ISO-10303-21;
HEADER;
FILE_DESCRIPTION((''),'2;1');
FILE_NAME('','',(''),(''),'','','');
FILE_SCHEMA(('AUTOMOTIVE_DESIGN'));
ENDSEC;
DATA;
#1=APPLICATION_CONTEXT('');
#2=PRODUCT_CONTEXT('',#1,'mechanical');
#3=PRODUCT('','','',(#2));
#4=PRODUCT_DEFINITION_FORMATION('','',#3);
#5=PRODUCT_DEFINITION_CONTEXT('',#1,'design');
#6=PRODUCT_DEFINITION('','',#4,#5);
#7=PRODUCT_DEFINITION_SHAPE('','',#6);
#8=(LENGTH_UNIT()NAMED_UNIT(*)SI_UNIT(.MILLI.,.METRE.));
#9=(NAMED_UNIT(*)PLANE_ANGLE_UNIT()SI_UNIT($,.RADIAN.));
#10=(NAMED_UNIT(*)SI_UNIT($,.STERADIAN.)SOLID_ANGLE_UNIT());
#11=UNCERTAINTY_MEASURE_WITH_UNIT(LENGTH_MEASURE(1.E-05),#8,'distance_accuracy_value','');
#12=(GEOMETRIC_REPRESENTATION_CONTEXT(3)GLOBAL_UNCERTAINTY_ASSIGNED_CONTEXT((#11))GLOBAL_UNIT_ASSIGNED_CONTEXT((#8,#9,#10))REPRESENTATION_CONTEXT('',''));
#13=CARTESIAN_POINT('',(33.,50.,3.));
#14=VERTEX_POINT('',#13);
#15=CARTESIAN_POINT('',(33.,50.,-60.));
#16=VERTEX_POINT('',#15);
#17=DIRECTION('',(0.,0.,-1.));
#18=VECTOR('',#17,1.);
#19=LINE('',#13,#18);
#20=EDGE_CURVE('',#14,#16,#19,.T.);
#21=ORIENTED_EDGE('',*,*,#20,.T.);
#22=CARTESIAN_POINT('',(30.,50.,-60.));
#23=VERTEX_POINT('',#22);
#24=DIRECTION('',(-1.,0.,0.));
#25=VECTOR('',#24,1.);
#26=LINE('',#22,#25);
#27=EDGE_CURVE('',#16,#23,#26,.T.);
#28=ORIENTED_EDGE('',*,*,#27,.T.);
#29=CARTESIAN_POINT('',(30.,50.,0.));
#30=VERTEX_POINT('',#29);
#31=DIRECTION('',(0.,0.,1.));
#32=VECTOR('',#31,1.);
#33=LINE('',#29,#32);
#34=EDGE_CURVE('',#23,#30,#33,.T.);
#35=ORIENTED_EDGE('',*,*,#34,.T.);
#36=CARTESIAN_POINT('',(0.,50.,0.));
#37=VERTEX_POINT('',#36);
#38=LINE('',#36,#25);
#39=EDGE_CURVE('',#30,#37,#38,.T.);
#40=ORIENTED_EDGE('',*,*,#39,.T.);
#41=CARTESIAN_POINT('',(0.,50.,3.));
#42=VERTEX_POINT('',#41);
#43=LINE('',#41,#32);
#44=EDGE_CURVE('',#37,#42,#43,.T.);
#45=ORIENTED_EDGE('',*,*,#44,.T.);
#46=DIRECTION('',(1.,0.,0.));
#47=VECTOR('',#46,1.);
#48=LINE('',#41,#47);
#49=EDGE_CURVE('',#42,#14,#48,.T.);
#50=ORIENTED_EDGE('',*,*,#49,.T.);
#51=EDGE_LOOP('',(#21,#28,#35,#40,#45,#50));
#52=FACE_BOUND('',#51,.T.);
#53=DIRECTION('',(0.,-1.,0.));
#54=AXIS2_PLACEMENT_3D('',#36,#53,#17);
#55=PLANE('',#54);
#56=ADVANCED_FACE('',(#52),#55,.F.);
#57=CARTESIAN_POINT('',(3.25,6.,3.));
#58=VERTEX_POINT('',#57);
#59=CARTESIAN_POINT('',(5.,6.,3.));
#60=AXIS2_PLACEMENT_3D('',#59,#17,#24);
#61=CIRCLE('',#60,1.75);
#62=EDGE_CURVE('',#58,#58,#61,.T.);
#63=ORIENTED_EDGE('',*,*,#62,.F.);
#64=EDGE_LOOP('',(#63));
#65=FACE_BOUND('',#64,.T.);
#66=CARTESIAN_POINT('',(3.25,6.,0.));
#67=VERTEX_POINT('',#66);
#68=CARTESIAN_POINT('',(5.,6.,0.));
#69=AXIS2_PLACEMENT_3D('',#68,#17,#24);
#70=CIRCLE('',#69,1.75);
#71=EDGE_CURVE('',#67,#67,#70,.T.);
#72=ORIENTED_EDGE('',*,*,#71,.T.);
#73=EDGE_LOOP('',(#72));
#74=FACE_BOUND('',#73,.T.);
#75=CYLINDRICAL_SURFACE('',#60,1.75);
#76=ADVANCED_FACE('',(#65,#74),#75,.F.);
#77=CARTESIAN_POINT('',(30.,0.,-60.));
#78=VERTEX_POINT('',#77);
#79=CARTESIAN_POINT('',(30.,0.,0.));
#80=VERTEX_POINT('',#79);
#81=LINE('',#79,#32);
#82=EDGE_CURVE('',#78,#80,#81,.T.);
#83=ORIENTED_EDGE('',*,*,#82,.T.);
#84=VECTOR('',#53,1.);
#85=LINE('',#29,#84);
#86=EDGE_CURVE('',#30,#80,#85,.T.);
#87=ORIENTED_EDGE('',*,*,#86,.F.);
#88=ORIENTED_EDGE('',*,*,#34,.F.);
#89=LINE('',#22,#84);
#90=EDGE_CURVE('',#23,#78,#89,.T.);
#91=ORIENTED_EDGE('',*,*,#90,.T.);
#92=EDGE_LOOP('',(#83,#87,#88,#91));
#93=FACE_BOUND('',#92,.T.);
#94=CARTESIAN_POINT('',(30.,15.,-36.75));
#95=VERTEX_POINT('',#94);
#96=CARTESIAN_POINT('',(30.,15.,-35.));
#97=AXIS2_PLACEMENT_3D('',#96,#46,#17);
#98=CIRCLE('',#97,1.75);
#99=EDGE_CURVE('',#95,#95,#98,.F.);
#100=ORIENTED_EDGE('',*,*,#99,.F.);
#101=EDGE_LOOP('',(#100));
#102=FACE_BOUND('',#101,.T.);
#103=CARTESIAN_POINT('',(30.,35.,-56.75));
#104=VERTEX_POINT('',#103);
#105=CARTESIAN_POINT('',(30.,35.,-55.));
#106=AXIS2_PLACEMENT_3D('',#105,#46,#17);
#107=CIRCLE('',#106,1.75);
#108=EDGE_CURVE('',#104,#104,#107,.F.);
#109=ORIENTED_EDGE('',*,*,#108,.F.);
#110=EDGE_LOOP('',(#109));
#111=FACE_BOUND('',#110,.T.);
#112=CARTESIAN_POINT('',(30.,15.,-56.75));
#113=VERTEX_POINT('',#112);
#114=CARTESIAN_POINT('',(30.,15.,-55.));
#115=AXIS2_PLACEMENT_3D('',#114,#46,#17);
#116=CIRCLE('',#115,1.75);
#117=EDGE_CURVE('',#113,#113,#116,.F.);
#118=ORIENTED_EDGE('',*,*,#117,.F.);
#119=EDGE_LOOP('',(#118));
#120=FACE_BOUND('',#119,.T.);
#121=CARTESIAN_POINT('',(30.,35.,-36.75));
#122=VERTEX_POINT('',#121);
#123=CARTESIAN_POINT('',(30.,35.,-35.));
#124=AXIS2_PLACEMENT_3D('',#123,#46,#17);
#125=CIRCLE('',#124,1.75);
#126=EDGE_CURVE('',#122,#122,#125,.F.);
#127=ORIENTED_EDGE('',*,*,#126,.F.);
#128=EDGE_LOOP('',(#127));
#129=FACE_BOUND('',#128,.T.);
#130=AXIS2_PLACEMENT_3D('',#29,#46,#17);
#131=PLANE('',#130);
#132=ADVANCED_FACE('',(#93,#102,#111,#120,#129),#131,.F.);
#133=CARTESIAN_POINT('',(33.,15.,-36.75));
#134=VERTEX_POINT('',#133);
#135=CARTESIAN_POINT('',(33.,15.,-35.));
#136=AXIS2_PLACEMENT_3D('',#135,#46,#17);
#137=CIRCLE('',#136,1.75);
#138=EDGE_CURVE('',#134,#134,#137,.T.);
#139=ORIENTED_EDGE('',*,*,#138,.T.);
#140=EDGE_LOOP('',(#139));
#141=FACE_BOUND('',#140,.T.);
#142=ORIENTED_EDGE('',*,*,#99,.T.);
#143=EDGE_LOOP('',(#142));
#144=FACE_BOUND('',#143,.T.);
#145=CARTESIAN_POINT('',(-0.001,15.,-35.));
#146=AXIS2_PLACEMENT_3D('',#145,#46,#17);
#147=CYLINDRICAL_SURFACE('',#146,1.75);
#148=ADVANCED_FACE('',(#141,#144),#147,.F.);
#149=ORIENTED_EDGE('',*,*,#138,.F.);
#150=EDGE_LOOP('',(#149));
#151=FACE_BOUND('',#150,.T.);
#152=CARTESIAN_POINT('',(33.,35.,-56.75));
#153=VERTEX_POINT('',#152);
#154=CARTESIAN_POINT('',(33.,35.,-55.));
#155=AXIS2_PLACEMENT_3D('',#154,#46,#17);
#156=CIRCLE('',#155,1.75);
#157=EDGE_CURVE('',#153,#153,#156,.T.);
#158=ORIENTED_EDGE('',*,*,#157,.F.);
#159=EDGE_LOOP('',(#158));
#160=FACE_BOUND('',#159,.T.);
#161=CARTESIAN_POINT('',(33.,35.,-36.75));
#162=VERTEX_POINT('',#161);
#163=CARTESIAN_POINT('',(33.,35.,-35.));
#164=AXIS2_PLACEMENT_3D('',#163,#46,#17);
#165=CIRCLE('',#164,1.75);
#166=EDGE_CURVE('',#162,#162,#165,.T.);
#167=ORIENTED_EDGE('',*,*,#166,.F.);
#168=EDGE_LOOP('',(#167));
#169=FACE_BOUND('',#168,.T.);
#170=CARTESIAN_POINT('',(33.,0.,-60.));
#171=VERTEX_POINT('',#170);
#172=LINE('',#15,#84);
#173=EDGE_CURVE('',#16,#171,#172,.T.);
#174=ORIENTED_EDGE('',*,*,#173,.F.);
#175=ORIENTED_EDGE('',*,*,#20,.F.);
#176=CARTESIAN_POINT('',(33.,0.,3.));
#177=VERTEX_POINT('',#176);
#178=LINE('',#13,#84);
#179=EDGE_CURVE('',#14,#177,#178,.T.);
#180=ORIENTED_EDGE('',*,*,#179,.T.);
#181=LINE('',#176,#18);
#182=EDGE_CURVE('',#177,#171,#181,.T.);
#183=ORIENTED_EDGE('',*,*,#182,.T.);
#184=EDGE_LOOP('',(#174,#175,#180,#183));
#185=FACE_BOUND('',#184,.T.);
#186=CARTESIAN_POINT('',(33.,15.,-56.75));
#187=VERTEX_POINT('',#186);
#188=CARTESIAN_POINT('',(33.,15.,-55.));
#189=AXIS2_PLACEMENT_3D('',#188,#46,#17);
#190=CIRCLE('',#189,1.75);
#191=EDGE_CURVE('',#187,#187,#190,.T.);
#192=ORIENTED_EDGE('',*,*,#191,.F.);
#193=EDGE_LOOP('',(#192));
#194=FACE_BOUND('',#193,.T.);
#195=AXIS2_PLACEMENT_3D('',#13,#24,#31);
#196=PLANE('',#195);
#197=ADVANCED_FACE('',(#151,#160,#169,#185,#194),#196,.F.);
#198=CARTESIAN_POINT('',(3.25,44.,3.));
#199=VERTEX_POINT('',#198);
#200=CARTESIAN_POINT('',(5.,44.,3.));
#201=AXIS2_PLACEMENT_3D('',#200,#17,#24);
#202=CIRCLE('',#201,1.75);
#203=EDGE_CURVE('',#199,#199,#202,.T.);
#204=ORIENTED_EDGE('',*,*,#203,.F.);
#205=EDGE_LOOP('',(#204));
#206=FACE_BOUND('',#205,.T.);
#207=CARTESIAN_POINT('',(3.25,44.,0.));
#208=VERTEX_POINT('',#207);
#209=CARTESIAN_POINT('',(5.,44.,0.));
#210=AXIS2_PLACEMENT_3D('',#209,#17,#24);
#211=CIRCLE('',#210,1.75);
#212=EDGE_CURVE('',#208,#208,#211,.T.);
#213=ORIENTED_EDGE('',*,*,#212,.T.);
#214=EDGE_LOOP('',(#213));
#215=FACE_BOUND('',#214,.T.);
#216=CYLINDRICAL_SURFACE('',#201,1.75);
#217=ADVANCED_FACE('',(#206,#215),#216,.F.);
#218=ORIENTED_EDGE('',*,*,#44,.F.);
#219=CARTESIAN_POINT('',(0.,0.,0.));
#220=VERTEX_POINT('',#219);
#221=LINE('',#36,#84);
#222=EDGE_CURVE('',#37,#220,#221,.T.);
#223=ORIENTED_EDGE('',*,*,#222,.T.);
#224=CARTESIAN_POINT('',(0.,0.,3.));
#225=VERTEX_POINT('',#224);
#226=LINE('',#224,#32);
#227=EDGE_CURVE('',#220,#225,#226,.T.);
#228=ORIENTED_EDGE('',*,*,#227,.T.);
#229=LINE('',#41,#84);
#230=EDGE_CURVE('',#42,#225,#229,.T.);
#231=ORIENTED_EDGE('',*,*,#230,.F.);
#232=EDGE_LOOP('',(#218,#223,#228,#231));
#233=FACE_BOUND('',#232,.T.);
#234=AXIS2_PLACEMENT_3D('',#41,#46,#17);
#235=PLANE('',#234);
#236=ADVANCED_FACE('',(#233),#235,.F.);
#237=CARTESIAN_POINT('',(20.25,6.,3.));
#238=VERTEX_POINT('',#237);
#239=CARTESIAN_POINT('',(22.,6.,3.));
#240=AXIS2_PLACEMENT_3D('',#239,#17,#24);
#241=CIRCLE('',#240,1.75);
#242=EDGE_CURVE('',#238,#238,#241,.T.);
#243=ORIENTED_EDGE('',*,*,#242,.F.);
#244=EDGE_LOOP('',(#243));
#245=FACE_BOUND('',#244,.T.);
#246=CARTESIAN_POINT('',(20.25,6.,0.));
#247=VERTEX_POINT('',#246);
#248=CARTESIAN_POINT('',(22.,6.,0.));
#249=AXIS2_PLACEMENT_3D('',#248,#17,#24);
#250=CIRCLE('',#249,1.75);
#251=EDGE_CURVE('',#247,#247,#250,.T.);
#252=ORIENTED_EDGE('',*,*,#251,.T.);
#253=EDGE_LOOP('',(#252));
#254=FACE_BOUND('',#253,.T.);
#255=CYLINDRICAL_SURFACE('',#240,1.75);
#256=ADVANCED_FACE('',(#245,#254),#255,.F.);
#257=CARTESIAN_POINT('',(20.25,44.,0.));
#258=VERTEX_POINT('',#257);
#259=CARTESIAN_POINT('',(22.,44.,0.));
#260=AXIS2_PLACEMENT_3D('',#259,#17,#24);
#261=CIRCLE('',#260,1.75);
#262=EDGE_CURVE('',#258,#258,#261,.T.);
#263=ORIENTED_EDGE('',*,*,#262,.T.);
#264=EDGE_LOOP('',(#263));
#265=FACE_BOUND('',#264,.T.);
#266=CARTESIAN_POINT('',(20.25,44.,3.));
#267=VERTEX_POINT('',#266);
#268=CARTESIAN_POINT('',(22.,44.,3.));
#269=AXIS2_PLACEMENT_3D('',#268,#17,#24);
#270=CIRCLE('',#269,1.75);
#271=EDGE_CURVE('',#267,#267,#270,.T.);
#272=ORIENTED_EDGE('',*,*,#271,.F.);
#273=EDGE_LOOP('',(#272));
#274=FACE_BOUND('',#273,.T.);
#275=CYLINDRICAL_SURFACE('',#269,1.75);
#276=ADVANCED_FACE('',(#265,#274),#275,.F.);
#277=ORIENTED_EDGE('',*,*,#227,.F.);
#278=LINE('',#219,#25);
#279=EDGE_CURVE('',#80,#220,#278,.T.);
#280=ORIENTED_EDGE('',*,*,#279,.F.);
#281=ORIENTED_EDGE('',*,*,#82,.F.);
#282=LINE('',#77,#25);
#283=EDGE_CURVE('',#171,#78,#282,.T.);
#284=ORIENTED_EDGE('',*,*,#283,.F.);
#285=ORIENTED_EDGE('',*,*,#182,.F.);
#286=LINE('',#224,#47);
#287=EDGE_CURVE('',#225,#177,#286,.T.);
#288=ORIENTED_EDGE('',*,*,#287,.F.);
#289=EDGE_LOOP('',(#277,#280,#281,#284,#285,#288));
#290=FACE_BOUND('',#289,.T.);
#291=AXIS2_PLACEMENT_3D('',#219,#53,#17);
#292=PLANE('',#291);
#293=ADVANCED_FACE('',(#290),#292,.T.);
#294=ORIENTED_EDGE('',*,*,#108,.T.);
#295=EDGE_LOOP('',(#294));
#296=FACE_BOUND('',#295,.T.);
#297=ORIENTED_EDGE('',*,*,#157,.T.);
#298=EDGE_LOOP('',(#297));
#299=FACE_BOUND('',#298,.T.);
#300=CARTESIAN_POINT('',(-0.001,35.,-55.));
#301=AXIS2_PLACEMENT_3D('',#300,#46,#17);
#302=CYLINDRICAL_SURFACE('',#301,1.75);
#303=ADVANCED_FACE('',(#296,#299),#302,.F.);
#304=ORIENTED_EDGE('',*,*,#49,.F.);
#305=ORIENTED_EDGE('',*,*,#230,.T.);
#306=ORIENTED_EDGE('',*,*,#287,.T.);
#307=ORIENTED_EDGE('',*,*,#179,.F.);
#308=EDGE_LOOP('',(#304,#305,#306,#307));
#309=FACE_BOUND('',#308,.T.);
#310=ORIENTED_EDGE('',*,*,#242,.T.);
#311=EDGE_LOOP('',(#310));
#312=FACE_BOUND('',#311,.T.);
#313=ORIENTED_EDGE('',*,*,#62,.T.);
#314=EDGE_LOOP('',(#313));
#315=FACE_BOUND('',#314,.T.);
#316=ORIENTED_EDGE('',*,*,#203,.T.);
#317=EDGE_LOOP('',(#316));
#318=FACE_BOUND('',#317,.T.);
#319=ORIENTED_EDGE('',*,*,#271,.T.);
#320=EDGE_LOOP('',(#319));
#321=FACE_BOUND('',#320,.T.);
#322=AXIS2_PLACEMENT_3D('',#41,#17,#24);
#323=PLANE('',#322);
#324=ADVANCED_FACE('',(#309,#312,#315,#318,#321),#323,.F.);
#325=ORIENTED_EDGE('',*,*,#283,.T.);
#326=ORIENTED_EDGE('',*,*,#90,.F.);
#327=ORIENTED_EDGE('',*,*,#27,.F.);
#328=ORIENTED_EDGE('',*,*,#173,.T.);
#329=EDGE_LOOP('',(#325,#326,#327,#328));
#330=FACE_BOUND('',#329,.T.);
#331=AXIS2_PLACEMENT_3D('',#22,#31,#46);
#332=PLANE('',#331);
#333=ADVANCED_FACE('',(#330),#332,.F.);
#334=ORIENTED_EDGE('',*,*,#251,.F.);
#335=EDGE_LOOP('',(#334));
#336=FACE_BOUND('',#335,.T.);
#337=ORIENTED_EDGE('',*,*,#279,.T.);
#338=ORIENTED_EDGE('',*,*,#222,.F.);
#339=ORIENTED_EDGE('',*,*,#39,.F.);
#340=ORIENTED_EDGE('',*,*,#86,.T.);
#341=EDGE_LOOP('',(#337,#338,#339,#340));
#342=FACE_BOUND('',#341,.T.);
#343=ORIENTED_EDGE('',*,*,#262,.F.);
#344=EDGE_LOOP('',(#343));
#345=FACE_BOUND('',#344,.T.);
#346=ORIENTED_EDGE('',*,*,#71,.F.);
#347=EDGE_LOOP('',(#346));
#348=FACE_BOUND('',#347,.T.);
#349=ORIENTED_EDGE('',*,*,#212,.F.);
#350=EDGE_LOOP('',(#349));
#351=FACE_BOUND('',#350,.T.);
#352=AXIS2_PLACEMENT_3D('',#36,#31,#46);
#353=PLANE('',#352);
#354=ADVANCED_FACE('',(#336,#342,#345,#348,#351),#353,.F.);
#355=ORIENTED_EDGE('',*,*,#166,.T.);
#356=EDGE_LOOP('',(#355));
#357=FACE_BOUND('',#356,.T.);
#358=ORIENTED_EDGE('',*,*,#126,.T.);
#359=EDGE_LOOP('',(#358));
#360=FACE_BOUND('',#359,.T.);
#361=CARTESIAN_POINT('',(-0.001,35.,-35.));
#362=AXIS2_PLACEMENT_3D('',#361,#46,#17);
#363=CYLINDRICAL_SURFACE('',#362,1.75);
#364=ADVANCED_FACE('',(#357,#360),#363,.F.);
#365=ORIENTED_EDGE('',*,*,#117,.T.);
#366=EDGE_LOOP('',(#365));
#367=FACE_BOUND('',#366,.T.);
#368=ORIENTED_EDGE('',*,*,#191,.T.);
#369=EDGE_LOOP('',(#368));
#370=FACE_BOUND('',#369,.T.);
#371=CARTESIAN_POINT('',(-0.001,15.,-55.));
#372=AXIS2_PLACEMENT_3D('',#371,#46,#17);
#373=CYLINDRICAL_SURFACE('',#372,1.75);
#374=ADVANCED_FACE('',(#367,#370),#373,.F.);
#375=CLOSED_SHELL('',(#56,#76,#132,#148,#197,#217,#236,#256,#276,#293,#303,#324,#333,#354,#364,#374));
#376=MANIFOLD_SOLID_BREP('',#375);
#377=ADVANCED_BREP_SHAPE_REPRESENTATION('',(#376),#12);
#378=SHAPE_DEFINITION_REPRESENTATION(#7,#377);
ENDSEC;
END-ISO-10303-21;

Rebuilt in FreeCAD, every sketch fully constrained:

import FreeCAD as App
import Part
import Sketcher

V = App.Vector
Q = App.Units.Quantity

doc = App.newDocument("Part")
body = doc.addObject("PartDesign::Body", "Body")

# Sketch on XZ plane
sketch1 = body.newObject("Sketcher::SketchObject", "Sketch")
sketch1.AttachmentSupport = (doc.getObject("XZ_Plane"), [""])
sketch1.MapMode = "FlatFace"
sketch1.addGeometry(Part.LineSegment(V(30, 0, 0), V(0, 0, 0)), False)
sketch1.addGeometry(Part.LineSegment(V(0, 0, 0), V(0, 3, 0)), False)
sketch1.addGeometry(Part.LineSegment(V(0, 3, 0), V(33, 3, 0)), False)
sketch1.addGeometry(Part.LineSegment(V(33, 3, 0), V(33, -60, 0)), False)
sketch1.addGeometry(Part.LineSegment(V(33, -60, 0), V(30, -60, 0)), False)
sketch1.addGeometry(Part.LineSegment(V(30, -60, 0), V(30, 0, 0)), False)
sketch1.addConstraint(Sketcher.Constraint("Coincident", 0, 2, 1, 1))
sketch1.addConstraint(Sketcher.Constraint("Coincident", 1, 2, 2, 1))
sketch1.addConstraint(Sketcher.Constraint("Coincident", 2, 2, 3, 1))
sketch1.addConstraint(Sketcher.Constraint("Coincident", 3, 2, 4, 1))
sketch1.addConstraint(Sketcher.Constraint("Coincident", 4, 2, 5, 1))
sketch1.addConstraint(Sketcher.Constraint("Coincident", 5, 2, 0, 1))
sketch1.addConstraint(Sketcher.Constraint("Horizontal", 0))
sketch1.addConstraint(Sketcher.Constraint("Vertical", 1))
sketch1.addConstraint(Sketcher.Constraint("Horizontal", 2))
sketch1.addConstraint(Sketcher.Constraint("Vertical", 3))
sketch1.addConstraint(Sketcher.Constraint("Horizontal", 4))
sketch1.addConstraint(Sketcher.Constraint("Vertical", 5))
sketch1.addConstraint(Sketcher.Constraint("Coincident", 0, 2, -1, 1))
sketch1.addConstraint(Sketcher.Constraint("Equal", 4, 1))
sketch1.addConstraint(Sketcher.Constraint("DistanceX", 0, 2, 0, 1, Q("30 mm")))
sketch1.addConstraint(Sketcher.Constraint("DistanceX", 2, 1, 2, 2, Q("33 mm")))
sketch1.addConstraint(Sketcher.Constraint("DistanceY", 3, 2, 3, 1, Q("63 mm")))
pad1 = body.newObject("PartDesign::Pad", "Pad")
pad1.Profile = sketch1
pad1.Length = 50
pad1.Reversed = True

# Sketch on XY plane
sketch2 = body.newObject("Sketcher::SketchObject", "Sketch001")
sketch2.AttachmentSupport = (doc.getObject("XY_Plane"), [""])
sketch2.MapMode = "FlatFace"
sketch2.addGeometry(Part.Circle(V(22, 6, 0), V(0, 0, 1), 1.8), False)
sketch2.addGeometry(Part.Circle(V(22, 44, 0), V(0, 0, 1), 1.8), False)
sketch2.addGeometry(Part.Circle(V(5, 44, 0), V(0, 0, 1), 1.8), False)
sketch2.addGeometry(Part.Circle(V(5, 6, 0), V(0, 0, 1), 1.8), False)
sketch2.addConstraint(Sketcher.Constraint("Equal", 0, 1))
sketch2.addConstraint(Sketcher.Constraint("Equal", 1, 2))
sketch2.addConstraint(Sketcher.Constraint("Equal", 2, 3))
sketch2.addConstraint(Sketcher.Constraint("Horizontal", 1, 3, 2, 3))
sketch2.addConstraint(Sketcher.Constraint("Horizontal", 0, 3, 3, 3))
sketch2.addConstraint(Sketcher.Constraint("Vertical", 0, 3, 1, 3))
sketch2.addConstraint(Sketcher.Constraint("Vertical", 2, 3, 3, 3))
sketch2.addConstraint(Sketcher.Constraint("Diameter", 0, Q("3.5 mm")))
sketch2.addConstraint(Sketcher.Constraint("DistanceX", -1, 1, 0, 3, Q("22 mm")))
sketch2.addConstraint(Sketcher.Constraint("DistanceY", -1, 1, 0, 3, Q("6 mm")))
sketch2.addConstraint(Sketcher.Constraint("DistanceY", -1, 1, 1, 3, Q("44 mm")))
sketch2.addConstraint(Sketcher.Constraint("DistanceX", -1, 1, 2, 3, Q("5 mm")))
pocket1 = body.newObject("PartDesign::Pocket", "Pocket")
pocket1.Profile = sketch2
pocket1.Type = "ThroughAll"
pocket1.Reversed = True

# Sketch on YZ plane
sketch3 = body.newObject("Sketcher::SketchObject", "Sketch002")
sketch3.AttachmentSupport = (doc.getObject("YZ_Plane"), [""])
sketch3.MapMode = "FlatFace"
sketch3.AttachmentOffset = App.Placement(V(0, 0, 33), App.Rotation())
sketch3.addGeometry(Part.Circle(V(35, -55, 0), V(0, 0, 1), 1.8), False)
sketch3.addConstraint(Sketcher.Constraint("Diameter", 0, Q("3.5 mm")))
sketch3.addConstraint(Sketcher.Constraint("DistanceX", -1, 1, 0, 3, Q("35 mm")))
sketch3.addConstraint(Sketcher.Constraint("DistanceY", 0, 3, -1, 1, Q("55 mm")))
pocket2 = body.newObject("PartDesign::Pocket", "Pocket001")
pocket2.Profile = sketch3
pocket2.Type = "UpToFirst"

# Sketch on YZ plane
sketch4 = body.newObject("Sketcher::SketchObject", "Sketch003")
sketch4.AttachmentSupport = (doc.getObject("YZ_Plane"), [""])
sketch4.MapMode = "FlatFace"
sketch4.AttachmentOffset = App.Placement(V(0, 0, 33), App.Rotation())
sketch4.addGeometry(Part.Circle(V(15, -55, 0), V(0, 0, 1), 1.8), False)
sketch4.addConstraint(Sketcher.Constraint("Diameter", 0, Q("3.5 mm")))
sketch4.addConstraint(Sketcher.Constraint("DistanceX", -1, 1, 0, 3, Q("15 mm")))
sketch4.addConstraint(Sketcher.Constraint("DistanceY", 0, 3, -1, 1, Q("55 mm")))
pocket3 = body.newObject("PartDesign::Pocket", "Pocket002")
pocket3.Profile = sketch4
pocket3.Type = "UpToFirst"

# Sketch on YZ plane
sketch5 = body.newObject("Sketcher::SketchObject", "Sketch004")
sketch5.AttachmentSupport = (doc.getObject("YZ_Plane"), [""])
sketch5.MapMode = "FlatFace"
sketch5.AttachmentOffset = App.Placement(V(0, 0, 33), App.Rotation())
sketch5.addGeometry(Part.Circle(V(35, -35, 0), V(0, 0, 1), 1.8), False)
sketch5.addConstraint(Sketcher.Constraint("Diameter", 0, Q("3.5 mm")))
sketch5.addConstraint(Sketcher.Constraint("DistanceX", -1, 1, 0, 3, Q("35 mm")))
sketch5.addConstraint(Sketcher.Constraint("DistanceY", 0, 3, -1, 1, Q("35 mm")))
pocket4 = body.newObject("PartDesign::Pocket", "Pocket003")
pocket4.Profile = sketch5
pocket4.Type = "UpToFirst"

# Sketch on YZ plane
sketch6 = body.newObject("Sketcher::SketchObject", "Sketch005")
sketch6.AttachmentSupport = (doc.getObject("YZ_Plane"), [""])
sketch6.MapMode = "FlatFace"
sketch6.AttachmentOffset = App.Placement(V(0, 0, 33), App.Rotation())
sketch6.addGeometry(Part.Circle(V(15, -35, 0), V(0, 0, 1), 1.8), False)
sketch6.addConstraint(Sketcher.Constraint("Diameter", 0, Q("3.5 mm")))
sketch6.addConstraint(Sketcher.Constraint("DistanceX", -1, 1, 0, 3, Q("15 mm")))
sketch6.addConstraint(Sketcher.Constraint("DistanceY", 0, 3, -1, 1, Q("35 mm")))
pocket5 = body.newObject("PartDesign::Pocket", "Pocket004")
pocket5.Profile = sketch6
pocket5.Type = "UpToFirst"

doc.recompute()
